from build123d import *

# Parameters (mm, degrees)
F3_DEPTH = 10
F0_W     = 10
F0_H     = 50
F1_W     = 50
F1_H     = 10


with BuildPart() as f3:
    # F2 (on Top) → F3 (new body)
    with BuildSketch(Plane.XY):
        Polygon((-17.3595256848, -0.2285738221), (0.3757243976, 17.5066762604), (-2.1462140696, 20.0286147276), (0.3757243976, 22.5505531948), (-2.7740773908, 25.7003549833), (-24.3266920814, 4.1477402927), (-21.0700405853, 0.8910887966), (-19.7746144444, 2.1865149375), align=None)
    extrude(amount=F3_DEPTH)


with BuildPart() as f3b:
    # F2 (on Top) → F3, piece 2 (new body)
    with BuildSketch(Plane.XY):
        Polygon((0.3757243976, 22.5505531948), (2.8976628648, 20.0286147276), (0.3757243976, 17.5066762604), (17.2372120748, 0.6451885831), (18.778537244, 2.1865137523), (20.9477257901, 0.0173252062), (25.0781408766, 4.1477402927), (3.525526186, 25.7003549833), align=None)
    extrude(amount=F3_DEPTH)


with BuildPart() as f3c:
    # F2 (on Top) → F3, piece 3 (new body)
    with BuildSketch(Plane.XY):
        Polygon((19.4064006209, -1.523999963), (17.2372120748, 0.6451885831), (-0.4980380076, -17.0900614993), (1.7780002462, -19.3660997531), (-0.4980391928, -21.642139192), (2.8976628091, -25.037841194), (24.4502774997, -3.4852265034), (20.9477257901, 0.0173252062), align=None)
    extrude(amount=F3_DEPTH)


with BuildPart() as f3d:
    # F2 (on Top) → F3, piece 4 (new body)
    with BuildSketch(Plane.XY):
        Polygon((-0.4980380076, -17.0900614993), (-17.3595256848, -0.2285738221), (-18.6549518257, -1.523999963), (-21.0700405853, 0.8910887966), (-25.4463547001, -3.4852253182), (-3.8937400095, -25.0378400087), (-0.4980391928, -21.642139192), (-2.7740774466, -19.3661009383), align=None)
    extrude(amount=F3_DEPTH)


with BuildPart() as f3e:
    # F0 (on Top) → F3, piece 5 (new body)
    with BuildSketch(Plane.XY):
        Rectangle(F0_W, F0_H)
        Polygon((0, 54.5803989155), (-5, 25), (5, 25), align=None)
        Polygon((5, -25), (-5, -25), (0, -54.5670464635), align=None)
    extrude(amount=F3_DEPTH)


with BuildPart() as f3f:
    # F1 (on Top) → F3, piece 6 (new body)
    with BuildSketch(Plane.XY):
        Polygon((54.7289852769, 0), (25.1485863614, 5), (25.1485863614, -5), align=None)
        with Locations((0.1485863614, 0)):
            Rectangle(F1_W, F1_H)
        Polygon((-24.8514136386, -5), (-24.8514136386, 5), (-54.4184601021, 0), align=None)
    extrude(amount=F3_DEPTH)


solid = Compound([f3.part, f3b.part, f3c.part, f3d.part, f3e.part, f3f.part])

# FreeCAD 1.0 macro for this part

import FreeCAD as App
import Part
import Sketcher
from FreeCAD import Vector

doc = App.newDocument("Part")
body = doc.addObject("PartDesign::Body", "Body")

sketch1 = doc.addObject("Sketcher::SketchObject", "Sketch")
body.addObject(sketch1)
sketch1.AttachmentSupport = (doc.XY_Plane, [""])
sketch1.MapMode = "FlatFace"
sketch1.addGeometry([
    Part.LineSegment(Vector(-17.4, -0.2, 0), Vector(0.4, 17.5, 0)),
    Part.LineSegment(Vector(0.4, 17.5, 0), Vector(-2.1, 20, 0)),
    Part.LineSegment(Vector(-2.1, 20, 0), Vector(0.4, 22.6, 0)),
    Part.LineSegment(Vector(0.4, 22.6, 0), Vector(-2.8, 25.7, 0)),
    Part.LineSegment(Vector(-2.8, 25.7, 0), Vector(-24.3, 4.1, 0)),
    Part.LineSegment(Vector(-24.3, 4.1, 0), Vector(-21.1, 0.9, 0)),
    Part.LineSegment(Vector(-21.1, 0.9, 0), Vector(-19.8, 2.2, 0)),
    Part.LineSegment(Vector(-19.8, 2.2, 0), Vector(-17.4, -0.2, 0)),
], False)
sketch1.addConstraint([
    Sketcher.Constraint("Coincident", 0, 2, 1, 1),
    Sketcher.Constraint("Coincident", 1, 2, 2, 1),
    Sketcher.Constraint("Coincident", 2, 2, 3, 1),
    Sketcher.Constraint("Coincident", 3, 2, 4, 1),
    Sketcher.Constraint("Coincident", 4, 2, 5, 1),
    Sketcher.Constraint("Coincident", 5, 2, 6, 1),
    Sketcher.Constraint("Coincident", 6, 2, 7, 1),
    Sketcher.Constraint("Coincident", 7, 2, 0, 1),
    Sketcher.Constraint("Perpendicular", 0, 1),
    Sketcher.Constraint("Perpendicular", 1, 2),
    Sketcher.Constraint("Perpendicular", 2, 3),
    Sketcher.Constraint("Perpendicular", 3, 4),
    Sketcher.Constraint("Perpendicular", 4, 5),
    Sketcher.Constraint("Perpendicular", 5, 6),
    Sketcher.Constraint("Perpendicular", 6, 7),
    Sketcher.Constraint("Vertical", 0, 2, 2, 2),
    Sketcher.Constraint("Equal", 1, 2),
    Sketcher.Constraint("Distance", 4, 30.48),
    Sketcher.Constraint("Distance", 5, 4.605601),
    Sketcher.Constraint("DistanceX", 3, 2, 2, 2, 3.149802),
    Sketcher.Constraint("DistanceX", 6, 2, 1, 2, 17.6284),
    Sketcher.Constraint("Distance", 1, 3.56656),
    Sketcher.Constraint("DistanceY", -1, 1, 4, 2, 4.14774),
    Sketcher.Constraint("DistanceX", 5, 2, -1, 1, 21.070041),
])
pad1 = doc.addObject("PartDesign::Pad", "Pad")
body.addObject(pad1)
pad1.Profile = sketch1
pad1.Length = 10
body2 = doc.addObject("PartDesign::Body", "Body001")

sketch2 = doc.addObject("Sketcher::SketchObject", "Sketch001")
body2.addObject(sketch2)
sketch2.AttachmentSupport = (doc.getObject("XY_Plane001"), [""])
sketch2.MapMode = "FlatFace"
sketch2.addGeometry([
    Part.LineSegment(Vector(0.4, 22.6, 0), Vector(2.9, 20, 0)),
    Part.LineSegment(Vector(2.9, 20, 0), Vector(0.4, 17.5, 0)),
    Part.LineSegment(Vector(0.4, 17.5, 0), Vector(17.2, 0.6, 0)),
    Part.LineSegment(Vector(17.2, 0.6, 0), Vector(18.8, 2.2, 0)),
    Part.LineSegment(Vector(18.8, 2.2, 0), Vector(20.9, 0, 0)),
    Part.LineSegment(Vector(20.9, 0, 0), Vector(25.1, 4.1, 0)),
    Part.LineSegment(Vector(25.1, 4.1, 0), Vector(3.5, 25.7, 0)),
    Part.LineSegment(Vector(3.5, 25.7, 0), Vector(0.4, 22.6, 0)),
], False)
sketch2.addConstraint([
    Sketcher.Constraint("Coincident", 0, 2, 1, 1),
    Sketcher.Constraint("Coincident", 1, 2, 2, 1),
    Sketcher.Constraint("Coincident", 2, 2, 3, 1),
    Sketcher.Constraint("Coincident", 3, 2, 4, 1),
    Sketcher.Constraint("Coincident", 4, 2, 5, 1),
    Sketcher.Constraint("Coincident", 5, 2, 6, 1),
    Sketcher.Constraint("Coincident", 6, 2, 7, 1),
    Sketcher.Constraint("Coincident", 7, 2, 0, 1),
    Sketcher.Constraint("Perpendicular", 0, 1),
    Sketcher.Constraint("Perpendicular", 1, 2),
    Sketcher.Constraint("Perpendicular", 2, 3),
    Sketcher.Constraint("Perpendicular", 3, 4),
    Sketcher.Constraint("Perpendicular", 4, 5),
    Sketcher.Constraint("Perpendicular", 5, 6),
    Sketcher.Constraint("Perpendicular", 6, 7),
    Sketcher.Constraint("Vertical", 1, 2, 7, 2),
    Sketcher.Constraint("Equal", 0, 1),
    Sketcher.Constraint("Distance", 6, 30.48),
    Sketcher.Constraint("DistanceX", 1, 2, 4, 2, 20.572001),
    Sketcher.Constraint("DistanceY", 3, 2, 0, 2, 17.842101),
    Sketcher.Constraint("DistanceX", 1, 2, 6, 2, 3.149802),
    Sketcher.Constraint("Distance", 0, 3.56656),
    Sketcher.Constraint("DistanceY", -1, 1, 2, 2, 0.645189),
    Sketcher.Constraint("DistanceX", -1, 1, 5, 2, 25.078141),
])
pad2 = doc.addObject("PartDesign::Pad", "Pad001")
body2.addObject(pad2)
pad2.Profile = sketch2
pad2.Length = 10
body3 = doc.addObject("PartDesign::Body", "Body002")

sketch3 = doc.addObject("Sketcher::SketchObject", "Sketch002")
body3.addObject(sketch3)
sketch3.AttachmentSupport = (doc.getObject("XY_Plane002"), [""])
sketch3.MapMode = "FlatFace"
sketch3.addGeometry([
    Part.LineSegment(Vector(19.4, -1.5, 0), Vector(17.2, 0.6, 0)),
    Part.LineSegment(Vector(17.2, 0.6, 0), Vector(-0.5, -17.1, 0)),
    Part.LineSegment(Vector(-0.5, -17.1, 0), Vector(1.8, -19.4, 0)),
    Part.LineSegment(Vector(1.8, -19.4, 0), Vector(-0.5, -21.6, 0)),
    Part.LineSegment(Vector(-0.5, -21.6, 0), Vector(2.9, -25, 0)),
    Part.LineSegment(Vector(2.9, -25, 0), Vector(24.5, -3.5, 0)),
    Part.LineSegment(Vector(24.5, -3.5, 0), Vector(20.9, 0, 0)),
    Part.LineSegment(Vector(20.9, 0, 0), Vector(19.4, -1.5, 0)),
], False)
sketch3.addConstraint([
    Sketcher.Constraint("Coincident", 0, 2, 1, 1),
    Sketcher.Constraint("Coincident", 1, 2, 2, 1),
    Sketcher.Constraint("Coincident", 2, 2, 3, 1),
    Sketcher.Constraint("Coincident", 3, 2, 4, 1),
    Sketcher.Constraint("Coincident", 4, 2, 5, 1),
    Sketcher.Constraint("Coincident", 5, 2, 6, 1),
    Sketcher.Constraint("Coincident", 6, 2, 7, 1),
    Sketcher.Constraint("Coincident", 7, 2, 0, 1),
    Sketcher.Constraint("Perpendicular", 0, 1),
    Sketcher.Constraint("Perpendicular", 1, 2),
    Sketcher.Constraint("Perpendicular", 2, 3),
    Sketcher.Constraint("Perpendicular", 3, 4),
    Sketcher.Constraint("Perpendicular", 4, 5),
    Sketcher.Constraint("Perpendicular", 5, 6),
    Sketcher.Constraint("Perpendicular", 6, 7),
    Sketcher.Constraint("Vertical", 1, 2, 3, 2),
    Sketcher.Constraint("Equal", 2, 3),
    Sketcher.Constraint("Distance", 5, 30.48),
    Sketcher.Constraint("DistanceX", -1, 1, 2, 2, 1.778),
    Sketcher.Constraint("DistanceY", 7, 2, -1, 1, 1.524),
    Sketcher.Constraint("DistanceY", 2, 2, -1, 1, 19.3661),
    Sketcher.Constraint("DistanceX", -1, 1, 7, 2, 19.406401),
    Sketcher.Constraint("DistanceX", 1, 2, 4, 2, 3.395701),
    Sketcher.Constraint("DistanceY", -1, 1, 0, 2, 0.645189),
])
pad3 = doc.addObject("PartDesign::Pad", "Pad002")
body3.addObject(pad3)
pad3.Profile = sketch3
pad3.Length = 10
body4 = doc.addObject("PartDesign::Body", "Body003")

sketch4 = doc.addObject("Sketcher::SketchObject", "Sketch003")
body4.addObject(sketch4)
sketch4.AttachmentSupport = (doc.getObject("XY_Plane003"), [""])
sketch4.MapMode = "FlatFace"
sketch4.addGeometry([
    Part.LineSegment(Vector(-0.5, -17.1, 0), Vector(-17.4, -0.2, 0)),
    Part.LineSegment(Vector(-17.4, -0.2, 0), Vector(-18.7, -1.5, 0)),
    Part.LineSegment(Vector(-18.7, -1.5, 0), Vector(-21.1, 0.9, 0)),
    Part.LineSegment(Vector(-21.1, 0.9, 0), Vector(-25.4, -3.5, 0)),
    Part.LineSegment(Vector(-25.4, -3.5, 0), Vector(-3.9, -25, 0)),
    Part.LineSegment(Vector(-3.9, -25, 0), Vector(-0.5, -21.6, 0)),
    Part.LineSegment(Vector(-0.5, -21.6, 0), Vector(-2.8, -19.4, 0)),
    Part.LineSegment(Vector(-2.8, -19.4, 0), Vector(-0.5, -17.1, 0)),
], False)
sketch4.addConstraint([
    Sketcher.Constraint("Coincident", 0, 2, 1, 1),
    Sketcher.Constraint("Coincident", 1, 2, 2, 1),
    Sketcher.Constraint("Coincident", 2, 2, 3, 1),
    Sketcher.Constraint("Coincident", 3, 2, 4, 1),
    Sketcher.Constraint("Coincident", 4, 2, 5, 1),
    Sketcher.Constraint("Coincident", 5, 2, 6, 1),
    Sketcher.Constraint("Coincident", 6, 2, 7, 1),
    Sketcher.Constraint("Coincident", 7, 2, 0, 1),
    Sketcher.Constraint("Perpendicular", 0, 1),
    Sketcher.Constraint("Perpendicular", 1, 2),
    Sketcher.Constraint("Perpendicular", 2, 3),
    Sketcher.Constraint("Perpendicular", 3, 4),
    Sketcher.Constraint("Perpendicular", 4, 5),
    Sketcher.Constraint("Perpendicular", 5, 6),
    Sketcher.Constraint("Perpendicular", 6, 7),
    Sketcher.Constraint("Vertical", 5, 2, 7, 2),
    Sketcher.Constraint("Equal", 6, 7),
    Sketcher.Constraint("Distance", 4, 30.48),
    Sketcher.Constraint("DistanceY", 1, 2, -1, 1, 1.524),
    Sketcher.Constraint("DistanceX", 2, 2, 5, 2, 20.572001),
    Sketcher.Constraint("DistanceY", 6, 2, -1, 1, 19.366101),
    Sketcher.Constraint("DistanceX", 2, 2, 4, 2, 17.176301),
    Sketcher.Constraint("Distance", 1, 1.832009),
    Sketcher.Constraint("DistanceX", 1, 2, -1, 1, 18.654952),
])
pad4 = doc.addObject("PartDesign::Pad", "Pad003")
body4.addObject(pad4)
pad4.Profile = sketch4
pad4.Length = 10
body5 = doc.addObject("PartDesign::Body", "Body004")

sketch5 = doc.addObject("Sketcher::SketchObject", "Sketch004")
body5.addObject(sketch5)
sketch5.AttachmentSupport = (doc.getObject("XY_Plane004"), [""])
sketch5.MapMode = "FlatFace"
sketch5.addGeometry([
    Part.LineSegment(Vector(-5, 25, 0), Vector(-5, -25, 0)),
    Part.LineSegment(Vector(-5, -25, 0), Vector(0, -55, 0)),
    Part.LineSegment(Vector(0, -55, 0), Vector(5, -25, 0)),
    Part.LineSegment(Vector(5, -25, 0), Vector(5, 25, 0)),
    Part.LineSegment(Vector(5, 25, 0), Vector(0, 55, 0)),
    Part.LineSegment(Vector(0, 55, 0), Vector(-5, 25, 0)),
], False)
sketch5.addConstraint([
    Sketcher.Constraint("Coincident", 0, 2, 1, 1),
    Sketcher.Constraint("Coincident", 1, 2, 2, 1),
    Sketcher.Constraint("Coincident", 2, 2, 3, 1),
    Sketcher.Constraint("Coincident", 3, 2, 4, 1),
    Sketcher.Constraint("Coincident", 4, 2, 5, 1),
    Sketcher.Constraint("Coincident", 5, 2, 0, 1),
    Sketcher.Constraint("Vertical", 0),
    Sketcher.Constraint("Vertical", 3),
    Sketcher.Constraint("Symmetric", 0, 2, 3, 2, -1, 1),
    Sketcher.Constraint("PointOnObject", 1, 2, -2),
    Sketcher.Constraint("PointOnObject", 4, 2, -2),
    Sketcher.Constraint("Horizontal", 0, 2, 2, 2),
    Sketcher.Constraint("Horizontal", 3, 2, 5, 2),
    Sketcher.Constraint("DistanceY", 0, 2, 0, 1, 50.0),
    Sketcher.Constraint("Distance", 4, 30.0),
    Sketcher.Constraint("DistanceX", 0, 2, -1, 1, 5.0),
    Sketcher.Constraint("Distance", 1, 29.986834),
])
pad5 = doc.addObject("PartDesign::Pad", "Pad004")
body5.addObject(pad5)
pad5.Profile = sketch5
pad5.Length = 10
body6 = doc.addObject("PartDesign::Body", "Body005")

sketch6 = doc.addObject("Sketcher::SketchObject", "Sketch005")
body6.addObject(sketch6)
sketch6.AttachmentSupport = (doc.getObject("XY_Plane005"), [""])
sketch6.MapMode = "FlatFace"
sketch6.addGeometry([
    Part.LineSegment(Vector(55, 0, 0), Vector(25, 5, 0)),
    Part.LineSegment(Vector(25, 5, 0), Vector(-25, 5, 0)),
    Part.LineSegment(Vector(-25, 5, 0), Vector(-54, 0, 0)),
    Part.LineSegment(Vector(-54, 0, 0), Vector(-25, -5, 0)),
    Part.LineSegment(Vector(-25, -5, 0), Vector(25, -5, 0)),
    Part.LineSegment(Vector(25, -5, 0), Vector(55, 0, 0)),
], False)
sketch6.addConstraint([
    Sketcher.Constraint("Coincident", 0, 2, 1, 1),
    Sketcher.Constraint("Coincident", 1, 2, 2, 1),
    Sketcher.Constraint("Coincident", 2, 2, 3, 1),
    Sketcher.Constraint("Coincident", 3, 2, 4, 1),
    Sketcher.Constraint("Coincident", 4, 2, 5, 1),
    Sketcher.Constraint("Coincident", 5, 2, 0, 1),
    Sketcher.Constraint("Horizontal", 1),
    Sketcher.Constraint("Horizontal", 4),
    Sketcher.Constraint("Symmetric", 1, 2, 3, 2, -1),
    Sketcher.Constraint("PointOnObject", 2, 2, -1),
    Sketcher.Constraint("PointOnObject", 5, 2, -1),
    Sketcher.Constraint("Vertical", 0, 2, 4, 2),
    Sketcher.Constraint("DistanceX", 1, 2, 1, 1, 50.0),
    Sketcher.Constraint("Distance", 0, 30.0),
    Sketcher.Constraint("DistanceY", -1, 1, 0, 2, 5.0),
    Sketcher.Constraint("DistanceX", 2, 2, -1, 1, 54.41846),
    Sketcher.Constraint("Distance", 2, 29.986834),
])
pad6 = doc.addObject("PartDesign::Pad", "Pad005")
body6.addObject(pad6)
pad6.Profile = sketch6
pad6.Length = 10

doc.recompute()
